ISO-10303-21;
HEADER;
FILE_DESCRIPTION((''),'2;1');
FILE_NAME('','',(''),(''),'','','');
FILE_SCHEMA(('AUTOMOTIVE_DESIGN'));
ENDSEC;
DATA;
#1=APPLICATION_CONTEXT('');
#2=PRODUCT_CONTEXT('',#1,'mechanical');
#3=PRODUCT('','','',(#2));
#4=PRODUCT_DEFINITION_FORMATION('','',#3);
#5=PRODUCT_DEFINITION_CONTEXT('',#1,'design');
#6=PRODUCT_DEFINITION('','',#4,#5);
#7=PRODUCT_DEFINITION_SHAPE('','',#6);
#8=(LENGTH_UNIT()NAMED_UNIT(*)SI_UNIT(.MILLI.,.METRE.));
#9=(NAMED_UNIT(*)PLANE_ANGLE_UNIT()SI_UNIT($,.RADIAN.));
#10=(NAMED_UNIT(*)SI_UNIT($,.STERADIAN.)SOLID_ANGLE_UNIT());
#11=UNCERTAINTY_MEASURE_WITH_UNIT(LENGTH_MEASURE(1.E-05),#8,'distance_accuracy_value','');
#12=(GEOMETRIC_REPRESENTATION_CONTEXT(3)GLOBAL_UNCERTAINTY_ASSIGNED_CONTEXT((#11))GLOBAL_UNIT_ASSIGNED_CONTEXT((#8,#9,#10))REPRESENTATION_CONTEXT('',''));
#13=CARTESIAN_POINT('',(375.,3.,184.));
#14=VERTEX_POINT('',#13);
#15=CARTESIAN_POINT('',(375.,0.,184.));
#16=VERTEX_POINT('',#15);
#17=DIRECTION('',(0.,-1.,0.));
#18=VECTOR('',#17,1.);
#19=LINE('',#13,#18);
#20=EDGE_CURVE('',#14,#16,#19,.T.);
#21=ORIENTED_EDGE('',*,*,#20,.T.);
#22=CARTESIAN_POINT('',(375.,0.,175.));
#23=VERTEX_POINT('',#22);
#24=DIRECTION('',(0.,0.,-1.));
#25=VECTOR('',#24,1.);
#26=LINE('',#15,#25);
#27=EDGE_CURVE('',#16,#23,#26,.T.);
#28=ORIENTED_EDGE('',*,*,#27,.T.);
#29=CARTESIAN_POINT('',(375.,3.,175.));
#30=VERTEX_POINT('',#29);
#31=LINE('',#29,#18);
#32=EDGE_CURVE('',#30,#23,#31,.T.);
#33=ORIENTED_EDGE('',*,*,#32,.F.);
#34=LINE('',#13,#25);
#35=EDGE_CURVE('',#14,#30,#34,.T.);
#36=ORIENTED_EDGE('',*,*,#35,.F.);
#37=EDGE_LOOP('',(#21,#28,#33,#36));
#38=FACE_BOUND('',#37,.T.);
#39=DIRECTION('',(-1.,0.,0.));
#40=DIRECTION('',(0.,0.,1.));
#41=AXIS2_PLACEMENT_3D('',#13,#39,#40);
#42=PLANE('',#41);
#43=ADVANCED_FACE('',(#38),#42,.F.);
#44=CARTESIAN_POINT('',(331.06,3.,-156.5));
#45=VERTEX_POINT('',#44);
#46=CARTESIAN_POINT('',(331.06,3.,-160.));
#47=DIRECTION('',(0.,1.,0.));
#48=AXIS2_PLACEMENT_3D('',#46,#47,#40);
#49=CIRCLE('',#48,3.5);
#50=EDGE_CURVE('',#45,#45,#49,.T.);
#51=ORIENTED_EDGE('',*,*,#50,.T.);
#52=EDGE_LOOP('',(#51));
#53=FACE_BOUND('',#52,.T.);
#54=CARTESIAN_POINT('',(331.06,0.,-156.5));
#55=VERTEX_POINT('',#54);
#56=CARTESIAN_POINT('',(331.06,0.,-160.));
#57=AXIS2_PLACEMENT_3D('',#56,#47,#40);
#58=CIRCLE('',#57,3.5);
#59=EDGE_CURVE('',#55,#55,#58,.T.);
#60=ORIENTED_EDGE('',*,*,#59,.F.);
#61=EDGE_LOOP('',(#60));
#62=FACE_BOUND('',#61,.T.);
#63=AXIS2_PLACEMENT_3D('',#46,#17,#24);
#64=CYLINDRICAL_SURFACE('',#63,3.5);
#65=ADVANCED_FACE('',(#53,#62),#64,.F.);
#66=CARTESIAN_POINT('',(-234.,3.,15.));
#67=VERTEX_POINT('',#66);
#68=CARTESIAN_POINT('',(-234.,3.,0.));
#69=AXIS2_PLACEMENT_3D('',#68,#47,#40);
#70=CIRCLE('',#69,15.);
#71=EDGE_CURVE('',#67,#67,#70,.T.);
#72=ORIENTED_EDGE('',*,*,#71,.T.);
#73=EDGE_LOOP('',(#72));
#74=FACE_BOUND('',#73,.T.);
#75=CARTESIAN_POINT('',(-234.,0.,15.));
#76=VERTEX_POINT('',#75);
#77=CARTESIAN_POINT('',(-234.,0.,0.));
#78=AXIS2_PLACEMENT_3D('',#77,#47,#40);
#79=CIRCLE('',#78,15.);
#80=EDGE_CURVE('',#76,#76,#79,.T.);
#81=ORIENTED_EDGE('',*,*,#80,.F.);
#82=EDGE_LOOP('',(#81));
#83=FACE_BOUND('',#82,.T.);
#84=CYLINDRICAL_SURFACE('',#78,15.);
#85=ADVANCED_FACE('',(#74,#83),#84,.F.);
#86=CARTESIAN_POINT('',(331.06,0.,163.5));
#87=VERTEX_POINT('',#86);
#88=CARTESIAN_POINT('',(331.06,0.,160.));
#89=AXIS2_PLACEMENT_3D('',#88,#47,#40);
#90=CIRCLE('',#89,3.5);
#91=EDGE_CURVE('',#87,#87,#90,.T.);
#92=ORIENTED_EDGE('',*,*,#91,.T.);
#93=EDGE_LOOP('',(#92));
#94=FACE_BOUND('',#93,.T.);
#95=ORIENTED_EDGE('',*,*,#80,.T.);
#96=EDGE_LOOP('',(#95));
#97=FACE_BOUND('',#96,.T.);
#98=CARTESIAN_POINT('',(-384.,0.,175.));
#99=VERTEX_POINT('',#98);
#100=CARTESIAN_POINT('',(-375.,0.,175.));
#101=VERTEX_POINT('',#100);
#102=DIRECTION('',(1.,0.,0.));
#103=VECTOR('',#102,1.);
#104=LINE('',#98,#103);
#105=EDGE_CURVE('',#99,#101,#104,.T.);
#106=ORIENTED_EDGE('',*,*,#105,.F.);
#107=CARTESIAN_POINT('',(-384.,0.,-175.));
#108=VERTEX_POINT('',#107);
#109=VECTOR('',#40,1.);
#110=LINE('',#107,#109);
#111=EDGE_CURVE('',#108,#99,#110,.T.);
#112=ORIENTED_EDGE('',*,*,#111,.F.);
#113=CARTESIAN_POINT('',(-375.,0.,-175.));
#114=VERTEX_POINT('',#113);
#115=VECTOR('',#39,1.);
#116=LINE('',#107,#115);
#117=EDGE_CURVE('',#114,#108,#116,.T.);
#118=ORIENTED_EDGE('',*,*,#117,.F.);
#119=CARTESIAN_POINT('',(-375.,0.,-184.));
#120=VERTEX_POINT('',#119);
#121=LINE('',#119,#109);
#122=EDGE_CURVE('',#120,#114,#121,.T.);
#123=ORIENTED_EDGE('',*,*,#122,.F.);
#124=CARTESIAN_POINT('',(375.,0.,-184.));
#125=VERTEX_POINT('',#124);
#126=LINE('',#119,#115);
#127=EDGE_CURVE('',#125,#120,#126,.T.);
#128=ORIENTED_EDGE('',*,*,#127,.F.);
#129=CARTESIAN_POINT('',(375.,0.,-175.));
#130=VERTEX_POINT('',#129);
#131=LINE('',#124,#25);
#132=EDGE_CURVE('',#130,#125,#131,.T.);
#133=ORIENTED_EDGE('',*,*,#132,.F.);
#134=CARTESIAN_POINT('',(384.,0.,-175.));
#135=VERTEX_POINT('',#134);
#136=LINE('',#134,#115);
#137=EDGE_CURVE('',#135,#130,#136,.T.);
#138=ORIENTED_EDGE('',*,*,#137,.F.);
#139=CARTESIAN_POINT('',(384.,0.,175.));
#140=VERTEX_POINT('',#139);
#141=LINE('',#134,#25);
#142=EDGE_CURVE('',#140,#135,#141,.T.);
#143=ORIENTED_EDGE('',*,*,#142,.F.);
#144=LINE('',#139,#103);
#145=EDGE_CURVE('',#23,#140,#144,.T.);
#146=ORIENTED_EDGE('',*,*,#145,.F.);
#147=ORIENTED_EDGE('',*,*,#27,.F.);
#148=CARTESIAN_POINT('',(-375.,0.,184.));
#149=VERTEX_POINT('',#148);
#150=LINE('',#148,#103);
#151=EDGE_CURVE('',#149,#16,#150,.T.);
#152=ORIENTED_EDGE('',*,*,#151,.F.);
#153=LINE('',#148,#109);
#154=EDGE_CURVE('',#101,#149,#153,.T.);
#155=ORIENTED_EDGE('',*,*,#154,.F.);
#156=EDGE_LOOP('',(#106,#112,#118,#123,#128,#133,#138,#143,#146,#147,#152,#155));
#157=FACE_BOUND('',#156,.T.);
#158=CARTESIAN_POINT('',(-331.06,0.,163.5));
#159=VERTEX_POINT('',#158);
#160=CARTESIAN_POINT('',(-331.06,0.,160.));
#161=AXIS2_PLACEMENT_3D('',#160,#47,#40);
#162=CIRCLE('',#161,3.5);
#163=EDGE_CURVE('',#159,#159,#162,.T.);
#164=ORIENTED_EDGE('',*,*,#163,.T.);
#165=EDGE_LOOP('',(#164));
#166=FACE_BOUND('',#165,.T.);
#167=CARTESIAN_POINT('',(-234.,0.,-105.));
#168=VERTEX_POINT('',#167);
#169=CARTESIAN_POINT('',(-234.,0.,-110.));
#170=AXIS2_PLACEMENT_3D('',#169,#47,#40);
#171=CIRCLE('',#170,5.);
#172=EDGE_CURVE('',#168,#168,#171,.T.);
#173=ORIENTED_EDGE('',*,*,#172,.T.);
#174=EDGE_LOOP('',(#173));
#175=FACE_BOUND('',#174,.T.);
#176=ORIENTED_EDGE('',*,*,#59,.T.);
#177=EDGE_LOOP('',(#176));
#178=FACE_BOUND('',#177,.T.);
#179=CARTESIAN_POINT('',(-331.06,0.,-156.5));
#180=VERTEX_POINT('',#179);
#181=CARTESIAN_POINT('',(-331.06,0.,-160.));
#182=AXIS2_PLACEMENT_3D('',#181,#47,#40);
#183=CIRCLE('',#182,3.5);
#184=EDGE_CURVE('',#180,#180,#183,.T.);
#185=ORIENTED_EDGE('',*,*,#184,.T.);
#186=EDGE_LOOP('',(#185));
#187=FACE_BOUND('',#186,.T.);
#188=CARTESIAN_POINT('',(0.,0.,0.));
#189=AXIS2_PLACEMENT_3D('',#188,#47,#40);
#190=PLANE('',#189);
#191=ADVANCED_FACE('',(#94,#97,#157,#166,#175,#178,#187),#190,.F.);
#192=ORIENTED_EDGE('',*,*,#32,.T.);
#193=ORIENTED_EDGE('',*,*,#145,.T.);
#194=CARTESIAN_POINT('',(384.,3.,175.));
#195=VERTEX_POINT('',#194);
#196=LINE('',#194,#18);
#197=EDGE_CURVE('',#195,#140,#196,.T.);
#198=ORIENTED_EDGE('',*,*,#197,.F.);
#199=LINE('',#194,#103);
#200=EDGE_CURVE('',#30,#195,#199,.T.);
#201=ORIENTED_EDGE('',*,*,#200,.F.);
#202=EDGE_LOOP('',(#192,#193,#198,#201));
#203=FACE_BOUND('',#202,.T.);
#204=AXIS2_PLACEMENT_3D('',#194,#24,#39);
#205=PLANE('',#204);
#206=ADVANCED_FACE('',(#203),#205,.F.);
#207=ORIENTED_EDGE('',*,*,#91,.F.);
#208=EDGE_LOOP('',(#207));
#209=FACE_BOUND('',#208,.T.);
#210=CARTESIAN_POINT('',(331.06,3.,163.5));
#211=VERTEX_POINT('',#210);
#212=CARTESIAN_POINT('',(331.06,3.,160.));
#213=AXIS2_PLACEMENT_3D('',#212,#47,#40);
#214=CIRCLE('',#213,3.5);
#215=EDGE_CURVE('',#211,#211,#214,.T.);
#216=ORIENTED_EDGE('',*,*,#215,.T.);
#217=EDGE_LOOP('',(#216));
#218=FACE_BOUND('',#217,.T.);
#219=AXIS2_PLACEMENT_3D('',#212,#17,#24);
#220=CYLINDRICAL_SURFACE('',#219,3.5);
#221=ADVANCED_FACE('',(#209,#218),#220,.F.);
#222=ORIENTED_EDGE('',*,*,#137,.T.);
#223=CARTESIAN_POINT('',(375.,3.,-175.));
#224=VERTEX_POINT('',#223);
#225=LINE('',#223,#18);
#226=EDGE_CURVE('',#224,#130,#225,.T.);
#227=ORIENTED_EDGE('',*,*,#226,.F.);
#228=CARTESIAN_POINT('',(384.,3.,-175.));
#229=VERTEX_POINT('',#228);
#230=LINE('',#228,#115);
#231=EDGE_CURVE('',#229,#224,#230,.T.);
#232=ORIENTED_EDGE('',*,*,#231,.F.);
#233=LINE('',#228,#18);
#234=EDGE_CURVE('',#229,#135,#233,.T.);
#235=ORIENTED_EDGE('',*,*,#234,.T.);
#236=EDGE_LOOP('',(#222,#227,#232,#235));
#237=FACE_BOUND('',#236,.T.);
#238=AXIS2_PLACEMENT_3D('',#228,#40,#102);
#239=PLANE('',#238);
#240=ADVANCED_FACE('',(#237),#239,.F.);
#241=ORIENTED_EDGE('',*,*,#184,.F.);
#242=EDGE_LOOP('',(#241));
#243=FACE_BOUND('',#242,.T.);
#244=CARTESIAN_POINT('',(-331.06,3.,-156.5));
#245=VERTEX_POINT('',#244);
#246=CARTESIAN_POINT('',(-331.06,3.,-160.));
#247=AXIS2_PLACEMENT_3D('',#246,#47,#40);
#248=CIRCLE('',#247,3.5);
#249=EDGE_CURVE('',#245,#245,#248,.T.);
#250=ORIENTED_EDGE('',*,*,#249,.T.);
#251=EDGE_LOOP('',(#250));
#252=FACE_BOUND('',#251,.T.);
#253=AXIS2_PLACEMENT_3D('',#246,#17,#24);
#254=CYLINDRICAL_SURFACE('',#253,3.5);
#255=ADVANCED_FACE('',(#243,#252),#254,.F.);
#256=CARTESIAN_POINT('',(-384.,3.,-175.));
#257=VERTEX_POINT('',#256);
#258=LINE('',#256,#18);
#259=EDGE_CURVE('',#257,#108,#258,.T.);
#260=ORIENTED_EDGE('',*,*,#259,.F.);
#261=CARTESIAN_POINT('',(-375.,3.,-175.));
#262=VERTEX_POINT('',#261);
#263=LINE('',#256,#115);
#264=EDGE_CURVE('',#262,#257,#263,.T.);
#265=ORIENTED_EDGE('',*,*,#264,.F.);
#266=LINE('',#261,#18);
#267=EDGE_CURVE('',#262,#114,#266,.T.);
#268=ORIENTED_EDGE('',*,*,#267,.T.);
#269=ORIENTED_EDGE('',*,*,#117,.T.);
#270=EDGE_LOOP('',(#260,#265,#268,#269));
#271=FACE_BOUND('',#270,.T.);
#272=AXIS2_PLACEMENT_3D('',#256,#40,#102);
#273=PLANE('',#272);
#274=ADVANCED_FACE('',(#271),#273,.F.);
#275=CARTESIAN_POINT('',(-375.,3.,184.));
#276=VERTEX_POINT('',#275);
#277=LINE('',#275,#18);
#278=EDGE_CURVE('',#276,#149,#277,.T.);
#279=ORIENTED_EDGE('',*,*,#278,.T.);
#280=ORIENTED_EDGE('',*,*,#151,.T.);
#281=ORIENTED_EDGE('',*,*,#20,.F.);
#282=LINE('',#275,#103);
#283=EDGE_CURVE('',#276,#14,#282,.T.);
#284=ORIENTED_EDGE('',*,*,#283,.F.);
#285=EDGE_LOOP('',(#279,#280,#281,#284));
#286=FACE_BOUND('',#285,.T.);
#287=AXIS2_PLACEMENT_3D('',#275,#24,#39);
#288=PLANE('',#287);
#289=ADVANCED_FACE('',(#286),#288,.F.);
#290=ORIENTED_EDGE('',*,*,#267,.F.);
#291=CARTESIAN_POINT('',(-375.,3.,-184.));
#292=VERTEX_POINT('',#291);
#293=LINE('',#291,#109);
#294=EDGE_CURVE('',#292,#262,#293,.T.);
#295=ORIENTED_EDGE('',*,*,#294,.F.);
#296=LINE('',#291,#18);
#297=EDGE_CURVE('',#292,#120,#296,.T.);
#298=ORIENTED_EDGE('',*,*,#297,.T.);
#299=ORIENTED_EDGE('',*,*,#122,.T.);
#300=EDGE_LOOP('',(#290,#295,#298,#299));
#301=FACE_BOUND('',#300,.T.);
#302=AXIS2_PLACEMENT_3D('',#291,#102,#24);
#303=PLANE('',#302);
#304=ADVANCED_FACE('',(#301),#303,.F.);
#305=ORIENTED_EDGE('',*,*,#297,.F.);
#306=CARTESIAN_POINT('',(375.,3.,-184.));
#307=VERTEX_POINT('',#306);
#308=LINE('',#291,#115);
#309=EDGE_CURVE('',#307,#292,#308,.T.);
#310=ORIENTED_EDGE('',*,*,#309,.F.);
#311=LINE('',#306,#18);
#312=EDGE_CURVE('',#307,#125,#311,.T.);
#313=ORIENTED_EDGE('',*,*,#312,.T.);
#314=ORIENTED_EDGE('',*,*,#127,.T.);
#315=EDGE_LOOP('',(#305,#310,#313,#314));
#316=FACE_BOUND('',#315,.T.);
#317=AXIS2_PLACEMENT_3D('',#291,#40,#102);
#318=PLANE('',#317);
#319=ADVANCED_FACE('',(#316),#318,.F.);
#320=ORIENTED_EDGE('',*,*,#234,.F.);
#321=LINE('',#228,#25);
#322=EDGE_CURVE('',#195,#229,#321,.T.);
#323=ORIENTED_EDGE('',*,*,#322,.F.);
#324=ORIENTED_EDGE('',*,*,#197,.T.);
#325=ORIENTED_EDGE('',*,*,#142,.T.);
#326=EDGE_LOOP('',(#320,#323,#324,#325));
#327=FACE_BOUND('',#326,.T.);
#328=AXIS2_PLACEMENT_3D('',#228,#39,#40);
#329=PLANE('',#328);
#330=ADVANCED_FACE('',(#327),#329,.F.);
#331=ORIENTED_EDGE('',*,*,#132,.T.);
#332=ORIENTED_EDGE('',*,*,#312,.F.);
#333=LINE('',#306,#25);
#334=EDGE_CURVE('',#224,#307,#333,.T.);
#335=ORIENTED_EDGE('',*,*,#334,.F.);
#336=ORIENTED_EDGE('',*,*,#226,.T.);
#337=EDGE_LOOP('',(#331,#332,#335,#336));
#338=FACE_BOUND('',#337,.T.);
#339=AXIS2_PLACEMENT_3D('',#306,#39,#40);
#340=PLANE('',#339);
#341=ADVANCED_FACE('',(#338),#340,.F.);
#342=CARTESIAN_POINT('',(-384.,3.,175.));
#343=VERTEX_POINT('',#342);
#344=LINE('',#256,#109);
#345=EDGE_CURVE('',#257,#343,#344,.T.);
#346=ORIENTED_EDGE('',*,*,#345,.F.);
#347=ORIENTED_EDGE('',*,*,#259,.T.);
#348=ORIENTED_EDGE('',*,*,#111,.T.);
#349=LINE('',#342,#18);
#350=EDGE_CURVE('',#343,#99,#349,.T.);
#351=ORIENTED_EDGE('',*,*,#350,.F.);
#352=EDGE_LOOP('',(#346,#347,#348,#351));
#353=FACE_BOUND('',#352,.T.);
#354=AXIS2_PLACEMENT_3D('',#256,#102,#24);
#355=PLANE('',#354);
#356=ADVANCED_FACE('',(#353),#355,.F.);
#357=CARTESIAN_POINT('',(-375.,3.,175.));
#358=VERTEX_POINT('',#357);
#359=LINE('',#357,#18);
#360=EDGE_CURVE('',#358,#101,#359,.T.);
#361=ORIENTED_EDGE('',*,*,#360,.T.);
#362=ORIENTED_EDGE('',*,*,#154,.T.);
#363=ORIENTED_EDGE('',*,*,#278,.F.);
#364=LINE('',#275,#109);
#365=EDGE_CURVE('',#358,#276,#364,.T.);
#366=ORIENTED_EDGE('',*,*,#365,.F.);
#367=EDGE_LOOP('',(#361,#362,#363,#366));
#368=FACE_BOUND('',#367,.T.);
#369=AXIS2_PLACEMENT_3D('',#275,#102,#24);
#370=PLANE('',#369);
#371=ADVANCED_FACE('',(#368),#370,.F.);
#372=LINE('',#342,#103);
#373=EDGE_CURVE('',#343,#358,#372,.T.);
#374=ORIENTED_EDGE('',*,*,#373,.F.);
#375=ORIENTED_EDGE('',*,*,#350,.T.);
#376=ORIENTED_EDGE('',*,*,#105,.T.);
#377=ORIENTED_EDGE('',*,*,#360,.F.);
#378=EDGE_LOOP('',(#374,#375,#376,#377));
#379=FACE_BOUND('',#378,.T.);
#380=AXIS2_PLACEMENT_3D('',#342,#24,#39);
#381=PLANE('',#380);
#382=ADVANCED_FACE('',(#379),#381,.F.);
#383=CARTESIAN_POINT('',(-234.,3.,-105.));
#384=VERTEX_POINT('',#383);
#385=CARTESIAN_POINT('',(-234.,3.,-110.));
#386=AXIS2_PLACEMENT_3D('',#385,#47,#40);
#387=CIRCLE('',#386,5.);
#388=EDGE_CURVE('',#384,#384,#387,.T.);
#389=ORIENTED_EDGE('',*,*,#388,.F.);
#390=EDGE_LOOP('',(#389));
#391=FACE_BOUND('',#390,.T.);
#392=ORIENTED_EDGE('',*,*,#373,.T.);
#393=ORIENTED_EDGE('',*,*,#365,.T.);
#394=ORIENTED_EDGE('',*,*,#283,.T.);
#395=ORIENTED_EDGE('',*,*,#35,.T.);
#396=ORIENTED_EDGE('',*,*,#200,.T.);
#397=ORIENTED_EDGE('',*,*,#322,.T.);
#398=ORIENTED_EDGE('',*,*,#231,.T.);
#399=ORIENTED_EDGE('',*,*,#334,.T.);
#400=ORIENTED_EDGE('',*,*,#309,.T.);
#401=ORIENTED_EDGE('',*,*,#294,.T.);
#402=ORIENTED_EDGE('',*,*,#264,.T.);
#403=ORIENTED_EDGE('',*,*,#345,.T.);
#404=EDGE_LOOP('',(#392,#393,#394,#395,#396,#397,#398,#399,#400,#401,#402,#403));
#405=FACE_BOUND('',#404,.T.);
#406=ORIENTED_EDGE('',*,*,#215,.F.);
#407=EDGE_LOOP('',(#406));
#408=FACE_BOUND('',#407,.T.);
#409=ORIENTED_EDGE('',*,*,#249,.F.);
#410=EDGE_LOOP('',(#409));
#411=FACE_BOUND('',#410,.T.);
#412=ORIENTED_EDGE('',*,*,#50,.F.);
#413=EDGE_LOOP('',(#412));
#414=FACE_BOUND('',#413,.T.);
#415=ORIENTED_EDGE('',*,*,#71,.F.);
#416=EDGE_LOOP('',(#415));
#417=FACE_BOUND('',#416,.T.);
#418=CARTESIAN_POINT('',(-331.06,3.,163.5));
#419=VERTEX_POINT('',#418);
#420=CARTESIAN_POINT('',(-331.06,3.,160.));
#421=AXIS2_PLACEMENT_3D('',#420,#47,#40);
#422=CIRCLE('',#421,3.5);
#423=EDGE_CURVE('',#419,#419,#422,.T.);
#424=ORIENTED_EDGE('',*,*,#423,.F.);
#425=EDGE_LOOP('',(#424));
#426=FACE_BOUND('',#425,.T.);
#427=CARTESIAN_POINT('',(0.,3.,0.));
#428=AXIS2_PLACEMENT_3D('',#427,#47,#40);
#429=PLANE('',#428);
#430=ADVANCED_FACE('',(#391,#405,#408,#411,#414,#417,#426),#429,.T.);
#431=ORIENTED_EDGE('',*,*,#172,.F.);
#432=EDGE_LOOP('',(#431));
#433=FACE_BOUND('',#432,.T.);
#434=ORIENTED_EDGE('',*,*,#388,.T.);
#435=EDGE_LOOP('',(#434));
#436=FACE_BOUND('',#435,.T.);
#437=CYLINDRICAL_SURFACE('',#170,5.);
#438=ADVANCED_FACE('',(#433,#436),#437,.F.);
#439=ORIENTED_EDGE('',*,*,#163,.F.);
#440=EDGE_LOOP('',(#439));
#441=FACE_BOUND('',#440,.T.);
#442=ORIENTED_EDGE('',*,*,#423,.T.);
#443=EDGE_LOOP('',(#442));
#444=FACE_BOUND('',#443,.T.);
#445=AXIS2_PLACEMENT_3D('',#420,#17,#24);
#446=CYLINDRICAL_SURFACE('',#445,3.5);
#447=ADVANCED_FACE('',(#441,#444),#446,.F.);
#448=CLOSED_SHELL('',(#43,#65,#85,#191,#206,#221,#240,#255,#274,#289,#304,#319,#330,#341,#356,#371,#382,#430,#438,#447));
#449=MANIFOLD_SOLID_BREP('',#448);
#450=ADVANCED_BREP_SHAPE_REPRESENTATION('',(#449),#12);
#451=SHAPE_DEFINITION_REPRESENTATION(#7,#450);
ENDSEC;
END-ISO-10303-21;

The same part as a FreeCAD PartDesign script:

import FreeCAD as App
import Part
import Sketcher
Q = App.Units.Quantity

doc = App.newDocument("Part")
body = doc.addObject("PartDesign::Body", "Body")

sketch1 = body.newObject("Sketcher::SketchObject", "Sketch")
sketch1.AttachmentSupport = (doc.getObject("XZ_Plane"), [""])
sketch1.MapMode = "FlatFace"
sketch1.addGeometry([
    Part.LineSegment(App.Vector(375, -184, 0), App.Vector(-375, -184, 0)),
    Part.LineSegment(App.Vector(-375, -184, 0), App.Vector(-375, -175, 0)),
    Part.LineSegment(App.Vector(-375, -175, 0), App.Vector(-384, -175, 0)),
    Part.LineSegment(App.Vector(-384, -175, 0), App.Vector(-384, 175, 0)),
    Part.LineSegment(App.Vector(-384, 175, 0), App.Vector(-375, 175, 0)),
    Part.LineSegment(App.Vector(-375, 175, 0), App.Vector(-375, 184, 0)),
    Part.LineSegment(App.Vector(-375, 184, 0), App.Vector(375, 184, 0)),
    Part.LineSegment(App.Vector(375, 184, 0), App.Vector(375, 175, 0)),
    Part.LineSegment(App.Vector(375, 175, 0), App.Vector(384, 175, 0)),
    Part.LineSegment(App.Vector(384, 175, 0), App.Vector(384, -175, 0)),
    Part.LineSegment(App.Vector(384, -175, 0), App.Vector(375, -175, 0)),
    Part.LineSegment(App.Vector(375, -175, 0), App.Vector(375, -184, 0)),
    Part.Circle(App.Vector(331.06, 160, 0), App.Vector(0, 0, 1), 3.5),
    Part.Circle(App.Vector(-331.06, 160, 0), App.Vector(0, 0, 1), 3.5),
    Part.Circle(App.Vector(331.06, -160, 0), App.Vector(0, 0, 1), 3.5),
    Part.Circle(App.Vector(-331.06, -160, 0), App.Vector(0, 0, 1), 3.5),
], False)
sketch1.addConstraint([
    Sketcher.Constraint("Coincident", 0, 2, 1, 1),
    Sketcher.Constraint("Coincident", 1, 2, 2, 1),
    Sketcher.Constraint("Coincident", 2, 2, 3, 1),
    Sketcher.Constraint("Coincident", 3, 2, 4, 1),
    Sketcher.Constraint("Coincident", 4, 2, 5, 1),
    Sketcher.Constraint("Coincident", 5, 2, 6, 1),
    Sketcher.Constraint("Coincident", 6, 2, 7, 1),
    Sketcher.Constraint("Coincident", 7, 2, 8, 1),
    Sketcher.Constraint("Coincident", 8, 2, 9, 1),
    Sketcher.Constraint("Coincident", 9, 2, 10, 1),
    Sketcher.Constraint("Coincident", 10, 2, 11, 1),
    Sketcher.Constraint("Coincident", 11, 2, 0, 1),
    Sketcher.Constraint("Horizontal", 0),
    Sketcher.Constraint("Vertical", 1),
    Sketcher.Constraint("Horizontal", 2),
    Sketcher.Constraint("Vertical", 3),
    Sketcher.Constraint("Horizontal", 4),
    Sketcher.Constraint("Vertical", 5),
    Sketcher.Constraint("Horizontal", 6),
    Sketcher.Constraint("Vertical", 7),
    Sketcher.Constraint("Horizontal", 8),
    Sketcher.Constraint("Vertical", 9),
    Sketcher.Constraint("Horizontal", 10),
    Sketcher.Constraint("Vertical", 11),
    Sketcher.Constraint("Equal", 12, 13),
    Sketcher.Constraint("Equal", 13, 14),
    Sketcher.Constraint("Equal", 14, 15),
    Sketcher.Constraint("Symmetric", 13, 3, 14, 3, -1, 1),
    Sketcher.Constraint("Symmetric", 12, 3, 15, 3, -1, 1),
    Sketcher.Constraint("Symmetric", 0, 2, 6, 2, -1, 1),
    Sketcher.Constraint("Symmetric", 2, 2, 8, 2, -1, 1),
    Sketcher.Constraint("Symmetric", 4, 2, 10, 2, -1, 1),
    Sketcher.Constraint("Symmetric", 12, 3, 13, 3, -2),
    Sketcher.Constraint("Symmetric", 4, 2, 7, 2, -2),
    Sketcher.Constraint("Equal", 10, 1),
    Sketcher.Constraint("Diameter", 12, Q("7 mm")),
    Sketcher.Constraint("DistanceX", 0, 2, 0, 1, Q("750 mm")),
    Sketcher.Constraint("DistanceX", 2, 2, 2, 1, Q("9 mm")),
    Sketcher.Constraint("DistanceY", 3, 1, 3, 2, Q("350 mm")),
    Sketcher.Constraint("DistanceY", -1, 1, 12, 3, Q("160 mm")),
    Sketcher.Constraint("DistanceX", -1, 1, 12, 3, Q("331.06 mm")),
])
pad1 = body.newObject("PartDesign::Pad", "Pad")
pad1.Profile = sketch1
pad1.Length = 3
pad1.Reversed = True

sketch2 = body.newObject("Sketcher::SketchObject", "Sketch001")
sketch2.AttachmentSupport = (doc.getObject("XZ_Plane"), [""])
sketch2.MapMode = "FlatFace"
sketch2.AttachmentOffset = App.Placement(App.Vector(0, 0, -3), App.Rotation())
sketch2.addGeometry(Part.Circle(App.Vector(-234, 0, 0), App.Vector(0, 0, 1), 15), False)
sketch2.addConstraint([
    Sketcher.Constraint("PointOnObject", 0, 3, -1),
    Sketcher.Constraint("Diameter", 0, Q("30 mm")),
    Sketcher.Constraint("DistanceX", 0, 3, -1, 1, Q("234 mm")),
])
pocket1 = body.newObject("PartDesign::Pocket", "Pocket")
pocket1.Profile = sketch2
pocket1.Type = "ThroughAll"
pocket1.Reversed = True

sketch3 = body.newObject("Sketcher::SketchObject", "Sketch002")
sketch3.AttachmentSupport = (doc.getObject("XZ_Plane"), [""])
sketch3.MapMode = "FlatFace"
sketch3.AttachmentOffset = App.Placement(App.Vector(0, 0, -3), App.Rotation())
sketch3.addGeometry(Part.Circle(App.Vector(-234, -110, 0), App.Vector(0, 0, 1), 5), False)
sketch3.addConstraint([
    Sketcher.Constraint("Diameter", 0, Q("10 mm")),
    Sketcher.Constraint("DistanceX", 0, 3, -1, 1, Q("234 mm")),
    Sketcher.Constraint("DistanceY", 0, 3, -1, 1, Q("110 mm")),
])
pocket2 = body.newObject("PartDesign::Pocket", "Pocket001")
pocket2.Profile = sketch3
pocket2.Type = "ThroughAll"
pocket2.Reversed = True

doc.recompute()
